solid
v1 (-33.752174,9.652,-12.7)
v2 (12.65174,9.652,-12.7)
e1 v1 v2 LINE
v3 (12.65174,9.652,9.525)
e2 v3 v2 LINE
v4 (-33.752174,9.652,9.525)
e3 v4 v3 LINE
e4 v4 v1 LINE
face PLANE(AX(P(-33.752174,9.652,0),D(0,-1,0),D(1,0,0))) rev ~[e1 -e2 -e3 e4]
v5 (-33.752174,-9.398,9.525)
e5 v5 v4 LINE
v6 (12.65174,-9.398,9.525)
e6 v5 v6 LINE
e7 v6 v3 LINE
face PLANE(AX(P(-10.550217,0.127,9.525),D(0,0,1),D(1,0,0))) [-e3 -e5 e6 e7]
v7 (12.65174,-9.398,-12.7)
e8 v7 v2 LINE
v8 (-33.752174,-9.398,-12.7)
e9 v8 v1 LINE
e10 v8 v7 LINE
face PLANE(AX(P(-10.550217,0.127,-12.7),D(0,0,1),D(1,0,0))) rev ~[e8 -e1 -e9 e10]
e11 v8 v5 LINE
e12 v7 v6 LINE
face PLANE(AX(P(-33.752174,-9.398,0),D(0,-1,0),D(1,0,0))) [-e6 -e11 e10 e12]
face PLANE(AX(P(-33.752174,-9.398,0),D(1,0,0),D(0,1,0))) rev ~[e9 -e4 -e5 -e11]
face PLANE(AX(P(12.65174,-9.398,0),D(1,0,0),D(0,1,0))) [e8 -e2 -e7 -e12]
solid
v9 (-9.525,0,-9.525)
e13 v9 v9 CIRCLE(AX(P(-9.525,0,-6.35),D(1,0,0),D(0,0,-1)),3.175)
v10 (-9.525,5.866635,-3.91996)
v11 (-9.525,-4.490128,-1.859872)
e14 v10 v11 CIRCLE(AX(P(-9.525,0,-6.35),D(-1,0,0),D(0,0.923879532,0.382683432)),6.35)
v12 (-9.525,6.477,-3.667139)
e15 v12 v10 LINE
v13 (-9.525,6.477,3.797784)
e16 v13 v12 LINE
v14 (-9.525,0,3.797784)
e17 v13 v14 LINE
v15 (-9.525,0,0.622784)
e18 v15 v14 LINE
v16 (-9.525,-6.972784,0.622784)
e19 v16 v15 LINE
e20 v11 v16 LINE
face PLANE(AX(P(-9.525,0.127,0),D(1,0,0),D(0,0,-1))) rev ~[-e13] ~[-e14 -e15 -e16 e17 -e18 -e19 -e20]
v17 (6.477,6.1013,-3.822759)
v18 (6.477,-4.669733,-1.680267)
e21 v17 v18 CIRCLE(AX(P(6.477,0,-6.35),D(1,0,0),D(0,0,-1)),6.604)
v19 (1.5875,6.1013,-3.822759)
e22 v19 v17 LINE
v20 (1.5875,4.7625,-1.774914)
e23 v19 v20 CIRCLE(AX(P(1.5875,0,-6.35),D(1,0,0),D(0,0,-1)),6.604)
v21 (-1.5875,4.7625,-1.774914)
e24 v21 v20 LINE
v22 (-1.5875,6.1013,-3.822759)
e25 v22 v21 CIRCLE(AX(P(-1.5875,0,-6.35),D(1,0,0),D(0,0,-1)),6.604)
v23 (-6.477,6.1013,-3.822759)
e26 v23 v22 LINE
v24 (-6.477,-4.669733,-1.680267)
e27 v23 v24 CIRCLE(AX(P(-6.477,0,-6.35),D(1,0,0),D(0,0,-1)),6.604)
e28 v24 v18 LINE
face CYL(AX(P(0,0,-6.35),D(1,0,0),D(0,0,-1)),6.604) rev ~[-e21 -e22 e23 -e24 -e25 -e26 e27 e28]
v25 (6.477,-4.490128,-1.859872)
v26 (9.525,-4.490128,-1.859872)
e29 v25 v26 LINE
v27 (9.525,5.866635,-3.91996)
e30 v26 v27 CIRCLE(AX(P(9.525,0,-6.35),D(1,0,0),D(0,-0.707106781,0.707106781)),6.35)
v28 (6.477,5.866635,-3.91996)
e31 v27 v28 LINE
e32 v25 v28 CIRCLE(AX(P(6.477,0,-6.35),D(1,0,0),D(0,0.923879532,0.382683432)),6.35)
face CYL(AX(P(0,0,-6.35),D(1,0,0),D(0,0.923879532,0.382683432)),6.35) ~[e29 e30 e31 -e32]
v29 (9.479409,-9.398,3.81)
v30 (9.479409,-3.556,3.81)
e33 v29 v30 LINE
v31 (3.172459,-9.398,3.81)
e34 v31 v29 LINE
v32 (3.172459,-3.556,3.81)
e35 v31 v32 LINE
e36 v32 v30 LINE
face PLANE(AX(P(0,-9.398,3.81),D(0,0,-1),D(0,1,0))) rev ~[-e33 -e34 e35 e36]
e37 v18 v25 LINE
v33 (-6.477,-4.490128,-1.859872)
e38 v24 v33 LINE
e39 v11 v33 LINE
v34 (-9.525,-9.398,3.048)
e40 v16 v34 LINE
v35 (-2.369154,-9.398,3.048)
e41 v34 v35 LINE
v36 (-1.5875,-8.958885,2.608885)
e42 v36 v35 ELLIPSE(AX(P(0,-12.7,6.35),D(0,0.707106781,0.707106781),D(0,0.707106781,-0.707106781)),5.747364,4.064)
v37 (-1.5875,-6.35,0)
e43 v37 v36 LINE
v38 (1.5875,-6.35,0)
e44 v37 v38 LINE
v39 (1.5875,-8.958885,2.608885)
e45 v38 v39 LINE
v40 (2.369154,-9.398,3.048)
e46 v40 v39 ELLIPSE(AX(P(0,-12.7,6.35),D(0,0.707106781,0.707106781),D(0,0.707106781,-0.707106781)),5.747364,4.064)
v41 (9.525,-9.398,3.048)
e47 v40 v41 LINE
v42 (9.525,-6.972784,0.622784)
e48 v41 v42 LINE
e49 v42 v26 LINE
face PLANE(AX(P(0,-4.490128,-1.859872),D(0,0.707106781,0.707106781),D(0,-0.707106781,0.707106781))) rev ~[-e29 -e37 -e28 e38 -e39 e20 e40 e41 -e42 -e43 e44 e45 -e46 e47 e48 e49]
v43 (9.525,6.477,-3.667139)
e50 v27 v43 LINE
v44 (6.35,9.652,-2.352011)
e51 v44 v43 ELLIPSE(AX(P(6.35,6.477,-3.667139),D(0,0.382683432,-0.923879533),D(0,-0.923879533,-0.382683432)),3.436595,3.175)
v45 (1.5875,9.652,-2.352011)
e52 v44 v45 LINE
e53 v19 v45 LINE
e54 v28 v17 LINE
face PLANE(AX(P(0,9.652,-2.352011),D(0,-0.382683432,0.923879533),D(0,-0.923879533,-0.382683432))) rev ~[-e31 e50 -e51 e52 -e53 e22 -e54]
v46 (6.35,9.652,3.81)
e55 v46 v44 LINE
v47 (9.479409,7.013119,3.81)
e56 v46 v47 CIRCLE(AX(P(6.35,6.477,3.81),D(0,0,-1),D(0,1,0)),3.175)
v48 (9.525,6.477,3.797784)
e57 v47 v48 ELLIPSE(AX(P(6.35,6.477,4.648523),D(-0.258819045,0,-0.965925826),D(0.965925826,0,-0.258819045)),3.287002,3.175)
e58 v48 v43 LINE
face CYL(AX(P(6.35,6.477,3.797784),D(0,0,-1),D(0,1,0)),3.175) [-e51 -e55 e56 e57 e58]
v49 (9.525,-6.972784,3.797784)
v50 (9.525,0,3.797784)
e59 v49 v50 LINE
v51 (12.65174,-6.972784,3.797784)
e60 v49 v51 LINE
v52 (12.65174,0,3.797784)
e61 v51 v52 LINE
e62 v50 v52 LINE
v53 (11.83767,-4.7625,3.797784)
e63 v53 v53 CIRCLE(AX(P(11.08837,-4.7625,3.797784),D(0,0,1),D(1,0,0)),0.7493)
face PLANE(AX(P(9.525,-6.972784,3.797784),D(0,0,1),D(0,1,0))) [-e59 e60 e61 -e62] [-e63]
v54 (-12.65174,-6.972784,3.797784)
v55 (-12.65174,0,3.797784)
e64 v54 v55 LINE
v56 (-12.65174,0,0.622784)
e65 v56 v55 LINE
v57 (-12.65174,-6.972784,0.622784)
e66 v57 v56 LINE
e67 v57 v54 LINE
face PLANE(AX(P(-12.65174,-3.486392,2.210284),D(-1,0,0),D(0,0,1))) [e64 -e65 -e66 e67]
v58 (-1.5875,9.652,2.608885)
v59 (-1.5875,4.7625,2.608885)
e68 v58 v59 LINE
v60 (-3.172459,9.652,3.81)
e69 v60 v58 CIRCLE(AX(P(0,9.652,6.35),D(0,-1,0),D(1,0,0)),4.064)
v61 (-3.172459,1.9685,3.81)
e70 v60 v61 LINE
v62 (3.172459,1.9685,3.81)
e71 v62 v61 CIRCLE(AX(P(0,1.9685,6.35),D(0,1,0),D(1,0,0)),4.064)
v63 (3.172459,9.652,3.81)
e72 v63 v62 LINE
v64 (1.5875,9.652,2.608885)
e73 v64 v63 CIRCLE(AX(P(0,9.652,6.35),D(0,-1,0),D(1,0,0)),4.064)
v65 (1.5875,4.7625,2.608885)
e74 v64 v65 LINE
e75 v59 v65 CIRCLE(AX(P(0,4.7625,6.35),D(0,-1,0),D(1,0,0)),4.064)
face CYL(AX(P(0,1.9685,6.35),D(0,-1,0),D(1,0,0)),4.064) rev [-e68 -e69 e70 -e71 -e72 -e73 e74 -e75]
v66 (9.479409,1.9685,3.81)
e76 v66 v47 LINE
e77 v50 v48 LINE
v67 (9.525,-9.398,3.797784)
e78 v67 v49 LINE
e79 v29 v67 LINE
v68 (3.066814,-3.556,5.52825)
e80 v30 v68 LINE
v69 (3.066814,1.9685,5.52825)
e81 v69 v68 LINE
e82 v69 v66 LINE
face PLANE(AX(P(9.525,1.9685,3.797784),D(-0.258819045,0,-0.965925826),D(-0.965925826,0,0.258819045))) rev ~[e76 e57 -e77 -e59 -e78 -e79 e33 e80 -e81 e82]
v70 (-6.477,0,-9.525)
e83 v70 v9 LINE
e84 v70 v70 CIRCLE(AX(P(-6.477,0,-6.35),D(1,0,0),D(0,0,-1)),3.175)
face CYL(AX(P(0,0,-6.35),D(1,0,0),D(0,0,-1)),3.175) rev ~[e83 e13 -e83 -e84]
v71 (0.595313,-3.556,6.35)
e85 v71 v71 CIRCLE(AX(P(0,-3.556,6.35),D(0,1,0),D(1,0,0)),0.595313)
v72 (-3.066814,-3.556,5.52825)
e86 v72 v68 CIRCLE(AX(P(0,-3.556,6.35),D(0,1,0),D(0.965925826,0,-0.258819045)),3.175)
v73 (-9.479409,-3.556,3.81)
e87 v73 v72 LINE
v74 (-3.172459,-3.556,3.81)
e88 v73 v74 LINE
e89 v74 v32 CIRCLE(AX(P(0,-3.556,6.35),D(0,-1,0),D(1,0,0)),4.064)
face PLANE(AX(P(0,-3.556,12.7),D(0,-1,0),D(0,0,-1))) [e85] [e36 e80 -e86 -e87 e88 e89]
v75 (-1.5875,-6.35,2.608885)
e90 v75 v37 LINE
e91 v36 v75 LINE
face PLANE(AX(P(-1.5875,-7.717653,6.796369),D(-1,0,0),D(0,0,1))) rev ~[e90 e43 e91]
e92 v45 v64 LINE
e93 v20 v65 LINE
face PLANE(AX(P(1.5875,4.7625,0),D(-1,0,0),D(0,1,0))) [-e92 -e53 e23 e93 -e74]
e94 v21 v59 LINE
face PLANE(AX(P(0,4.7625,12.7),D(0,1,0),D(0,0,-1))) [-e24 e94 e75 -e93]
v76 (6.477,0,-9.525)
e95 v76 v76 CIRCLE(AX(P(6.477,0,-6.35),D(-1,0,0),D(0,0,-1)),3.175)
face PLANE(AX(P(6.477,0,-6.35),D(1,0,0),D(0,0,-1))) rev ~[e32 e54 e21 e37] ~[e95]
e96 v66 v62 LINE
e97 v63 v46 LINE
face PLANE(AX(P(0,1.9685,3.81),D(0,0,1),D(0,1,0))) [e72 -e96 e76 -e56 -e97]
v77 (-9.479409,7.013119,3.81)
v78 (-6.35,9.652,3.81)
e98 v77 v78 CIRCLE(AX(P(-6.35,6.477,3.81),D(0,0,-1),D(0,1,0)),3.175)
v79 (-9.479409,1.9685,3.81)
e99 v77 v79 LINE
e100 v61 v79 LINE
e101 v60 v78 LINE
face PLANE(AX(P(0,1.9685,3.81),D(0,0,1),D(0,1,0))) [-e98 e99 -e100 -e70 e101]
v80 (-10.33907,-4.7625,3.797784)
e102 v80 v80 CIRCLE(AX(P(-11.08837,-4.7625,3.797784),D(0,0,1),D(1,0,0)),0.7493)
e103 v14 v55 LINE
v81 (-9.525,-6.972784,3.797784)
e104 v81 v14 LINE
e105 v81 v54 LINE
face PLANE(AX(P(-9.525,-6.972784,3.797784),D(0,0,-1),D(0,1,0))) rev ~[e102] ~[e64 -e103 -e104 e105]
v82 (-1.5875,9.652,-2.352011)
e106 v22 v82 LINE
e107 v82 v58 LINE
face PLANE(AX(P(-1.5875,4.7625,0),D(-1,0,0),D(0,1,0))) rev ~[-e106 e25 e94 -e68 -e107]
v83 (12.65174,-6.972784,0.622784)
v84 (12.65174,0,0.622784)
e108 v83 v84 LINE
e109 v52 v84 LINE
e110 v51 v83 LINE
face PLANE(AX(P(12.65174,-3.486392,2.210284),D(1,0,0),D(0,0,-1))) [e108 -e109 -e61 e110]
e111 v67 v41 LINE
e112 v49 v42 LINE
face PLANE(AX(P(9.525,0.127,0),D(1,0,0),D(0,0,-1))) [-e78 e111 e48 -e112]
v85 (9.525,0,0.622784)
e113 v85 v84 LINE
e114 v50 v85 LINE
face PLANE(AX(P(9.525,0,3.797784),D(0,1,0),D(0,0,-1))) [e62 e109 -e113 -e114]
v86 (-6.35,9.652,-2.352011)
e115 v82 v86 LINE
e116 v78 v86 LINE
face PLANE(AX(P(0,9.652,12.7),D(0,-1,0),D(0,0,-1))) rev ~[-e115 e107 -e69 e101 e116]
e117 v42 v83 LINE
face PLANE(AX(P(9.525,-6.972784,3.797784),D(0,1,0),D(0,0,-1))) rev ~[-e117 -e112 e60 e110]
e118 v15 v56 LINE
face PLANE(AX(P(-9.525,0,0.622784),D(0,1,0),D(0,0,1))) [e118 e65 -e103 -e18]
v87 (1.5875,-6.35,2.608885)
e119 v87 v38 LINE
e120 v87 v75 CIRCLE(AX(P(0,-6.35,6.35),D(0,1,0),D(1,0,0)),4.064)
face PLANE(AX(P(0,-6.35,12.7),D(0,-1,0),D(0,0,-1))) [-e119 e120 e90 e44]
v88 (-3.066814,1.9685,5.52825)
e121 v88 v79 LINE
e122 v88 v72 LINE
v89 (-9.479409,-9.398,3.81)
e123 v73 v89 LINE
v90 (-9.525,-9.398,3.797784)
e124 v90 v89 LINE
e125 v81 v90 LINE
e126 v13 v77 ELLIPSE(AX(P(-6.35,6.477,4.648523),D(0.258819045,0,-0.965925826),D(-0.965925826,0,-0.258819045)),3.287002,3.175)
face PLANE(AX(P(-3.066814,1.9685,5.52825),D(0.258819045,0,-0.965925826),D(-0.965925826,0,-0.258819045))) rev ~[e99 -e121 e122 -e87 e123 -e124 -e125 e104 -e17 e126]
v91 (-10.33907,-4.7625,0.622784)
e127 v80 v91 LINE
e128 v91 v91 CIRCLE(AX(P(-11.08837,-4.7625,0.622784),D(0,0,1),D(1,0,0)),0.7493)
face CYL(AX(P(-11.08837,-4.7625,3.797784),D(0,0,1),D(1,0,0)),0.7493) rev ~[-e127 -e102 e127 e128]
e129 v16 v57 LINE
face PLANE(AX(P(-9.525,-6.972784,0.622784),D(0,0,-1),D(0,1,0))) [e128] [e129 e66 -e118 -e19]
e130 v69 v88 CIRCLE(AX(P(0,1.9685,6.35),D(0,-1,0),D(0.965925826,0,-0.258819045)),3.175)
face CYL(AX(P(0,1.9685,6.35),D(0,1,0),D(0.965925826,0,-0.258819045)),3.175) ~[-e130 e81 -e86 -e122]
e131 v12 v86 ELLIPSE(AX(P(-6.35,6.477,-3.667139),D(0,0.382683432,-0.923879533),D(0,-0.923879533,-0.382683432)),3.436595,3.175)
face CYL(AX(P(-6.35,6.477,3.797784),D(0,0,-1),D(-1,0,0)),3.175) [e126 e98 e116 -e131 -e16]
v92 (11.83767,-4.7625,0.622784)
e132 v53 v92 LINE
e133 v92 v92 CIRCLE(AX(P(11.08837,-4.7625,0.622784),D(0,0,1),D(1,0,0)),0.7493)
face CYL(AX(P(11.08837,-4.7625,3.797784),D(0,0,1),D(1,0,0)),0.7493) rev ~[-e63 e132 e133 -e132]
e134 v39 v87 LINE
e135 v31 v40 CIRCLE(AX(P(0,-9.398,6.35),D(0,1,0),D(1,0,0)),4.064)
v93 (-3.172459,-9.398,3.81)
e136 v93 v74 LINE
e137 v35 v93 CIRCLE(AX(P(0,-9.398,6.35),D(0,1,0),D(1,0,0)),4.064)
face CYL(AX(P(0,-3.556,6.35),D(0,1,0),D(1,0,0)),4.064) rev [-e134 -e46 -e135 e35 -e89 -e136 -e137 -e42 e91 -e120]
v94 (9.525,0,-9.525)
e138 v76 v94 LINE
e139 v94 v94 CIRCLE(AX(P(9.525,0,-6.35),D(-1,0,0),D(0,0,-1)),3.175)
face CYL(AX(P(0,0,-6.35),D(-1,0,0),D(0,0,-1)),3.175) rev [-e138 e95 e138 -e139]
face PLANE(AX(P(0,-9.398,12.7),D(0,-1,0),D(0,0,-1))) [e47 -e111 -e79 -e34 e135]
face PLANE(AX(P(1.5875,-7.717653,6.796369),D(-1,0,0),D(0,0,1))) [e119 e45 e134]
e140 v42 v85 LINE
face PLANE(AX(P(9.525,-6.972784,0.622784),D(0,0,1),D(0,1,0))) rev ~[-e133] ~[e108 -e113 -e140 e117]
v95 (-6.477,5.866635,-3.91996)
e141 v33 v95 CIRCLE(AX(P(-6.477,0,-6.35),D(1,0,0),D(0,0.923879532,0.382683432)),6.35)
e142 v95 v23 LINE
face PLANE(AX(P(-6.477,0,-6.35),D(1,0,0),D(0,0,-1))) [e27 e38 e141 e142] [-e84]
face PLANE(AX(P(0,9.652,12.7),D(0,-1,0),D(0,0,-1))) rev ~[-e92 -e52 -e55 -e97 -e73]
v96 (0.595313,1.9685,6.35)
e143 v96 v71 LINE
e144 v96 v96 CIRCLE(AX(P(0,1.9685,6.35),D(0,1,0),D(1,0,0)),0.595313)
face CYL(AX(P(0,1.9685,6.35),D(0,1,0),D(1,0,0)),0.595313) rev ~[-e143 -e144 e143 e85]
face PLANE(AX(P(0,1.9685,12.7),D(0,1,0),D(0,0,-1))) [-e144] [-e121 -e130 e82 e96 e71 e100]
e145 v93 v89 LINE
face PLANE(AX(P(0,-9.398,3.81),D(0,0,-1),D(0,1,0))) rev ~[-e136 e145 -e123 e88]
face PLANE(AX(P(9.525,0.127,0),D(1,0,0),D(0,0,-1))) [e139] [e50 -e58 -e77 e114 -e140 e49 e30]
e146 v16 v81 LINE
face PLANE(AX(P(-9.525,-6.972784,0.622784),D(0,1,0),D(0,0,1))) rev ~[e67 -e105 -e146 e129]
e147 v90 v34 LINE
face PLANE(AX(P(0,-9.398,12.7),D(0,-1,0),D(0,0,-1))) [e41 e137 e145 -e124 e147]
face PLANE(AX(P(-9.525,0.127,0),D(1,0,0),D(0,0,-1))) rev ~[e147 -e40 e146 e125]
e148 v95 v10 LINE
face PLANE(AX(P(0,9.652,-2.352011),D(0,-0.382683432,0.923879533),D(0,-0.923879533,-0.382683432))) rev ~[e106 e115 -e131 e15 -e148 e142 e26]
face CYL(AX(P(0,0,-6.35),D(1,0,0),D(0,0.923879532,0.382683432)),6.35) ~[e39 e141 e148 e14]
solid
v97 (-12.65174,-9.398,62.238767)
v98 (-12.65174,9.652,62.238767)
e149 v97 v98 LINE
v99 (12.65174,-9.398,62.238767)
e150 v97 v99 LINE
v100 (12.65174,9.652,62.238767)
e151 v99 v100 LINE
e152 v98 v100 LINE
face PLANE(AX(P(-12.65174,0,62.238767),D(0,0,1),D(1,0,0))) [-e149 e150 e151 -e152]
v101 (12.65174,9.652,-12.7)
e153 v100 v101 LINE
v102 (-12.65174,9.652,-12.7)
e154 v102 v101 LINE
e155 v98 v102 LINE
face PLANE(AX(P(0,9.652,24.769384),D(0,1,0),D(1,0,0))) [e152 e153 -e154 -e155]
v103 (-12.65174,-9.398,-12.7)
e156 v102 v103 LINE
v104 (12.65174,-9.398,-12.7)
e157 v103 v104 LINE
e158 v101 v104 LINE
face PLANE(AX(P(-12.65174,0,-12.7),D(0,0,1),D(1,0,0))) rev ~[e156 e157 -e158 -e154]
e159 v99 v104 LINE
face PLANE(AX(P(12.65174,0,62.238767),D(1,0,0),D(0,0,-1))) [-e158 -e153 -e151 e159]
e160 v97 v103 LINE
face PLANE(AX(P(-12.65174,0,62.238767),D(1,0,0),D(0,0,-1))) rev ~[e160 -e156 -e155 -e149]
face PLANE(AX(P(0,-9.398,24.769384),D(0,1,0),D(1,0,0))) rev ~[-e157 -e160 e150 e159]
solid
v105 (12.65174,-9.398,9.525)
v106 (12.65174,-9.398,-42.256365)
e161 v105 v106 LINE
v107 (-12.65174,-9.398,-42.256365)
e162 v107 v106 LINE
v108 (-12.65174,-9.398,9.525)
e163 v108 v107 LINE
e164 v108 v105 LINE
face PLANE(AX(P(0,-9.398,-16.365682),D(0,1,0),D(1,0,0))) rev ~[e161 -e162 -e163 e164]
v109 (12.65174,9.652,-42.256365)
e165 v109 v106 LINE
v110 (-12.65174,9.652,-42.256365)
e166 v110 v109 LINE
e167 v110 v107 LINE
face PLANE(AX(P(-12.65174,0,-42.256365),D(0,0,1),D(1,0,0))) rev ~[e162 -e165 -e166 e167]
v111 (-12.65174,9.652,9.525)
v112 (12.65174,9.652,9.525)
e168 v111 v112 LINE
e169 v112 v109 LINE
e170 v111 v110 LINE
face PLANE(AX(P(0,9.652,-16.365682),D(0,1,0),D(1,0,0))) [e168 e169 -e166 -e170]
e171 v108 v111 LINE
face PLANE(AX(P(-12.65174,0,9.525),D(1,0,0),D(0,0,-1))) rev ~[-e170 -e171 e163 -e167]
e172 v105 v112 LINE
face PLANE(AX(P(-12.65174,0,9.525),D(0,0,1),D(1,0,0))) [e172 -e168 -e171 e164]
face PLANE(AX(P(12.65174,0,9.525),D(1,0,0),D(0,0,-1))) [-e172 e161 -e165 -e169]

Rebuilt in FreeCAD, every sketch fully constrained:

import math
import FreeCAD as App
import Part
import Sketcher
from FreeCAD import Vector
Q = App.Units.Quantity


def edges_at(feature, points):
    """Names of the edges that pass closest to the given points."""
    edges = feature.Shape.Edges
    near = lambda p: min(range(len(edges)), key=lambda i: edges[i].distToShape(Part.Vertex(*p))[0])
    return sorted({f"Edge{near(p) + 1}" for p in points})

doc = App.newDocument("Part")
body = doc.addObject("PartDesign::Body", "Body")

sketch1 = body.newObject("Sketcher::SketchObject", "Sketch")
sketch1.AttachmentSupport = (doc.getObject("YZ_Plane"), [""])
sketch1.MapMode = "FlatFace"
sketch1.addGeometry(Part.LineSegment(Vector(10, 13, 0), Vector(-9, 13, 0)), False)
sketch1.addGeometry(Part.LineSegment(Vector(-9, 13, 0), Vector(-9, -13, 0)), False)
sketch1.addGeometry(Part.LineSegment(Vector(-9, -13, 0), Vector(10, -13, 0)), False)
sketch1.addGeometry(Part.LineSegment(Vector(10, -13, 0), Vector(10, 13, 0)), False)
sketch1.addConstraint(Sketcher.Constraint("Coincident", 0, 2, 1, 1))
sketch1.addConstraint(Sketcher.Constraint("Coincident", 1, 2, 2, 1))
sketch1.addConstraint(Sketcher.Constraint("Coincident", 2, 2, 3, 1))
sketch1.addConstraint(Sketcher.Constraint("Coincident", 3, 2, 0, 1))
sketch1.addConstraint(Sketcher.Constraint("Horizontal", 0))
sketch1.addConstraint(Sketcher.Constraint("Vertical", 1))
sketch1.addConstraint(Sketcher.Constraint("Horizontal", 2))
sketch1.addConstraint(Sketcher.Constraint("Vertical", 3))
sketch1.addConstraint(Sketcher.Constraint("DistanceY", 1, 2, 1, 1, Q("1 in")))
sketch1.addConstraint(Sketcher.Constraint("DistanceX", 0, 2, 0, 1, Q("0.75 in")))
sketch1.addConstraint(Sketcher.Constraint("DistanceY", -1, 1, 0, 2, Q("0.5 in")))
sketch1.addConstraint(Sketcher.Constraint("DistanceX", 0, 2, -1, 1, Q("0.37 in")))
pad1 = body.newObject("PartDesign::Pad", "Pad")
pad1.Profile = sketch1
pad1.Length = Q("0.75 in")
pad1.Midplane = True

sketch2 = body.newObject("Sketcher::SketchObject", "Sketch001")
sketch2.AttachmentSupport = (doc.getObject("YZ_Plane"), [""])
sketch2.MapMode = "FlatFace"
sketch2.addGeometry(Part.LineSegment(Vector(14.4, 17.4, 0), Vector(-14.1, 17.4, 0)), False)
sketch2.addGeometry(Part.LineSegment(Vector(-14.1, 17.4, 0), Vector(-14.1, -17.4, 0)), False)
sketch2.addGeometry(Part.LineSegment(Vector(-14.1, -17.4, 0), Vector(14.4, -17.4, 0)), False)
sketch2.addGeometry(Part.LineSegment(Vector(14.4, -17.4, 0), Vector(14.4, 17.4, 0)), False)
sketch2.addGeometry(Part.ArcOfCircle(Part.Circle(Vector(0, -6.3, 0), Vector(0, 0, 1), 6.3), math.radians(135), math.radians(383)), False)
sketch2.addGeometry(Part.LineSegment(Vector(-4.5, -1.9, 0), Vector(-9.4, 3, 0)), False)
sketch2.addGeometry(Part.LineSegment(Vector(-9.4, 3, 0), Vector(-9.4, 12.7, 0)), False)
sketch2.addGeometry(Part.LineSegment(Vector(-9.4, 12.7, 0), Vector(9.7, 12.7, 0)), False)
sketch2.addGeometry(Part.LineSegment(Vector(9.7, 12.7, 0), Vector(9.7, -2.4, 0)), False)
sketch2.addGeometry(Part.LineSegment(Vector(9.7, -2.4, 0), Vector(5.9, -3.9, 0)), False)
sketch2.addConstraint(Sketcher.Constraint("Coincident", 0, 2, 1, 1))
sketch2.addConstraint(Sketcher.Constraint("Coincident", 1, 2, 2, 1))
sketch2.addConstraint(Sketcher.Constraint("Coincident", 2, 2, 3, 1))
sketch2.addConstraint(Sketcher.Constraint("Coincident", 3, 2, 0, 1))
sketch2.addConstraint(Sketcher.Constraint("Coincident", 4, 1, 5, 1))
sketch2.addConstraint(Sketcher.Constraint("Coincident", 5, 2, 6, 1))
sketch2.addConstraint(Sketcher.Constraint("Coincident", 6, 2, 7, 1))
sketch2.addConstraint(Sketcher.Constraint("Coincident", 7, 2, 8, 1))
sketch2.addConstraint(Sketcher.Constraint("Coincident", 8, 2, 9, 1))
sketch2.addConstraint(Sketcher.Constraint("Coincident", 9, 2, 4, 2))
sketch2.addConstraint(Sketcher.Constraint("Horizontal", 0))
sketch2.addConstraint(Sketcher.Constraint("Vertical", 1))
sketch2.addConstraint(Sketcher.Constraint("Horizontal", 2))
sketch2.addConstraint(Sketcher.Constraint("Vertical", 3))
sketch2.addConstraint(Sketcher.Constraint("Vertical", 6))
sketch2.addConstraint(Sketcher.Constraint("Horizontal", 7))
sketch2.addConstraint(Sketcher.Constraint("Vertical", 8))
sketch2.addConstraint(Sketcher.Constraint("PointOnObject", 4, 3, -2))
sketch2.addConstraint(Sketcher.Constraint("Radius", 4, Q("0.25 in")))
sketch2.addConstraint(Sketcher.Constraint("Angle", 5, Q("135 deg")))
sketch2.addConstraint(Sketcher.Constraint("DistanceX", 7, 1, 7, 2, Q("0.75 in")))
sketch2.addConstraint(Sketcher.Constraint("DistanceY", 6, 1, 6, 2, Q("0.38 in")))
sketch2.addConstraint(Sketcher.Constraint("DistanceY", -1, 1, 6, 2, Q("0.5 in")))
sketch2.addConstraint(Sketcher.Constraint("Angle", 9, Q("-157.5 deg")))
sketch2.addConstraint(Sketcher.Constraint("DistanceY", 4, 3, -1, 1, Q("0.25 in")))
sketch2.addConstraint(Sketcher.Constraint("DistanceX", 5, 2, -1, 1, Q("0.37 in")))
sketch2.addConstraint(Sketcher.Constraint("DistanceX", 0, 2, 0, 1, 28.456))
sketch2.addConstraint(Sketcher.Constraint("DistanceY", 1, 2, 1, 1, 34.806))
sketch2.addConstraint(Sketcher.Constraint("DistanceY", 8, 2, 8, 1, 15.052011))
sketch2.addConstraint(Sketcher.Constraint("DistanceX", 0, 2, -1, 1, 14.101))
sketch2.addConstraint(Sketcher.Constraint("DistanceY", -1, 1, 0, 2, 17.403))
pocket1 = body.newObject("PartDesign::Pocket", "Pocket")
pocket1.Profile = sketch2
pocket1.Type = "ThroughAll"
pocket1.Midplane = True

sketch3 = body.newObject("Sketcher::SketchObject", "Sketch002")
sketch3.AttachmentSupport = (doc.getObject("YZ_Plane"), [""])
sketch3.MapMode = "FlatFace"
sketch3.addGeometry(Part.Circle(Vector(0, -6, 0), Vector(0, 0, 1), 7), False)
sketch3.addConstraint(Sketcher.Constraint("PointOnObject", 0, 3, -2))
sketch3.addConstraint(Sketcher.Constraint("Diameter", 0, Q("0.52 in")))
sketch3.addConstraint(Sketcher.Constraint("DistanceY", 0, 3, -1, 1, Q("0.25 in")))
pocket2 = body.newObject("PartDesign::Pocket", "Pocket001")
pocket2.Profile = sketch3
pocket2.Length = Q("0.51 in")
pocket2.Midplane = True

sketch4 = body.newObject("Sketcher::SketchObject", "Sketch003")
sketch4.AttachmentSupport = (doc.getObject("YZ_Plane"), [""])
sketch4.MapMode = "FlatFace"
sketch4.addGeometry(Part.Circle(Vector(0, -6.3, 0), Vector(0, 0, 1), 3.2), False)
sketch4.addConstraint(Sketcher.Constraint("PointOnObject", 0, 3, -2))
sketch4.addConstraint(Sketcher.Constraint("Diameter", 0, Q("0.25 in")))
sketch4.addConstraint(Sketcher.Constraint("DistanceY", 0, 3, -1, 1, Q("0.25 in")))
pocket3 = body.newObject("PartDesign::Pocket", "Pocket002")
pocket3.Profile = sketch4
pocket3.Type = "ThroughAll"
pocket3.Midplane = True

sketch5 = body.newObject("Sketcher::SketchObject", "Sketch004")
sketch5.AttachmentSupport = (doc.getObject("XY_Plane"), [""])
sketch5.MapMode = "FlatFace"
sketch5.addGeometry(Part.LineSegment(Vector(-1.6, 9.7, 0), Vector(-1.6, 4.8, 0)), False)
sketch5.addGeometry(Part.LineSegment(Vector(-1.6, 4.8, 0), Vector(1.6, 4.8, 0)), False)
sketch5.addGeometry(Part.LineSegment(Vector(1.6, 4.8, 0), Vector(1.6, 9.7, 0)), False)
sketch5.addGeometry(Part.LineSegment(Vector(1.6, 9.7, 0), Vector(-1.6, 9.7, 0)), False)
sketch5.addConstraint(Sketcher.Constraint("Coincident", 0, 2, 1, 1))
sketch5.addConstraint(Sketcher.Constraint("Coincident", 1, 2, 2, 1))
sketch5.addConstraint(Sketcher.Constraint("Coincident", 2, 2, 3, 1))
sketch5.addConstraint(Sketcher.Constraint("Coincident", 3, 2, 0, 1))
sketch5.addConstraint(Sketcher.Constraint("Vertical", 0))
sketch5.addConstraint(Sketcher.Constraint("Horizontal", 1))
sketch5.addConstraint(Sketcher.Constraint("Vertical", 2))
sketch5.addConstraint(Sketcher.Constraint("Horizontal", 3))
sketch5.addConstraint(Sketcher.Constraint("DistanceX", 1, 1, 1, 2, Q("0.125 in")))
sketch5.addConstraint(Sketcher.Constraint("DistanceY", -1, 1, 2, 2, Q("0.38 in")))
sketch5.addConstraint(Sketcher.Constraint("DistanceY", 0, 2, 0, 1, Q("0.1925 in")))
sketch5.addConstraint(Sketcher.Constraint("DistanceX", 0, 2, -1, 1, Q("0.0625 in")))
pocket4 = body.newObject("PartDesign::Pocket", "Pocket003")
pocket4.Profile = sketch5
pocket4.Type = "ThroughAll"
pocket4.Midplane = True

sketch6 = body.newObject("Sketcher::SketchObject", "Sketch005")
sketch6.AttachmentSupport = (doc.getObject("YZ_Plane"), [""])
sketch6.MapMode = "FlatFace"
sketch6.addGeometry(Part.LineSegment(Vector(-9.4, 3, 0), Vector(-6.3, 0, 0)), False)
sketch6.addGeometry(Part.LineSegment(Vector(-6.3, 0, 0), Vector(-6.3, 12.7, 0)), False)
sketch6.addGeometry(Part.LineSegment(Vector(-6.3, 12.7, 0), Vector(-9.4, 12.7, 0)), False)
sketch6.addGeometry(Part.LineSegment(Vector(-9.4, 12.7, 0), Vector(-9.4, 3, 0)), False)
sketch6.addConstraint(Sketcher.Constraint("Coincident", 0, 2, 1, 1))
sketch6.addConstraint(Sketcher.Constraint("Coincident", 1, 2, 2, 1))
sketch6.addConstraint(Sketcher.Constraint("Coincident", 2, 2, 3, 1))
sketch6.addConstraint(Sketcher.Constraint("Coincident", 3, 2, 0, 1))
sketch6.addConstraint(Sketcher.Constraint("Vertical", 1))
sketch6.addConstraint(Sketcher.Constraint("Horizontal", 2))
sketch6.addConstraint(Sketcher.Constraint("Vertical", 3))
sketch6.addConstraint(Sketcher.Constraint("PointOnObject", 0, 2, -1))
sketch6.addConstraint(Sketcher.Constraint("DistanceY", 1, 1, 1, 2, Q("0.5 in")))
sketch6.addConstraint(Sketcher.Constraint("Angle", 0, Q("-45 deg")))
sketch6.addConstraint(Sketcher.Constraint("DistanceX", 2, 2, 2, 1, Q("0.12 in")))
sketch6.addConstraint(Sketcher.Constraint("DistanceX", 0, 2, -1, 1, Q("0.25 in")))
pocket5 = body.newObject("PartDesign::Pocket", "Pocket004")
pocket5.Profile = sketch6
pocket5.Length = Q("0.125 in")
pocket5.Midplane = True

sketch7 = body.newObject("Sketcher::SketchObject", "Sketch006")
sketch7.AttachmentSupport = (doc.getObject("YZ_Plane"), [""])
sketch7.MapMode = "FlatFace"
sketch7.addGeometry(Part.LineSegment(Vector(9.7, 12.7, 0), Vector(4.8, 12.7, 0)), False)
sketch7.addGeometry(Part.LineSegment(Vector(4.8, 12.7, 0), Vector(4.8, 3.8, 0)), False)
sketch7.addGeometry(Part.LineSegment(Vector(4.8, 3.8, 0), Vector(9.7, 3.8, 0)), False)
sketch7.addGeometry(Part.LineSegment(Vector(9.7, 3.8, 0), Vector(9.7, 12.7, 0)), False)
sketch7.addConstraint(Sketcher.Constraint("Coincident", 0, 2, 1, 1))
sketch7.addConstraint(Sketcher.Constraint("Coincident", 1, 2, 2, 1))
sketch7.addConstraint(Sketcher.Constraint("Coincident", 2, 2, 3, 1))
sketch7.addConstraint(Sketcher.Constraint("Coincident", 3, 2, 0, 1))
sketch7.addConstraint(Sketcher.Constraint("Horizontal", 0))
sketch7.addConstraint(Sketcher.Constraint("Vertical", 1))
sketch7.addConstraint(Sketcher.Constraint("Horizontal", 2))
sketch7.addConstraint(Sketcher.Constraint("Vertical", 3))
sketch7.addConstraint(Sketcher.Constraint("DistanceY", 1, 2, 1, 1, Q("0.35 in")))
sketch7.addConstraint(Sketcher.Constraint("DistanceY", -1, 1, 0, 2, Q("0.5 in")))
sketch7.addConstraint(Sketcher.Constraint("DistanceX", -1, 1, 2, 2, Q("0.38 in")))
sketch7.addConstraint(Sketcher.Constraint("DistanceX", 0, 2, 0, 1, Q("0.1925 in")))
pocket6 = body.newObject("PartDesign::Pocket", "Pocket005")
pocket6.Profile = sketch7
pocket6.Type = "ThroughAll"
pocket6.Midplane = True

sketch8 = body.newObject("Sketcher::SketchObject", "Sketch007")
sketch8.AttachmentSupport = (doc.getObject("YZ_Plane"), [""])
sketch8.MapMode = "FlatFace"
sketch8.addGeometry(Part.LineSegment(Vector(4.8, 12.7, 0), Vector(2, 12.7, 0)), False)
sketch8.addGeometry(Part.LineSegment(Vector(2, 12.7, 0), Vector(2, 3.8, 0)), False)
sketch8.addGeometry(Part.LineSegment(Vector(2, 3.8, 0), Vector(4.8, 3.8, 0)), False)
sketch8.addGeometry(Part.LineSegment(Vector(4.8, 3.8, 0), Vector(4.8, 12.7, 0)), False)
sketch8.addGeometry(Part.LineSegment(Vector(-3.6, 12.7, 0), Vector(-9.4, 12.7, 0)), False)
sketch8.addGeometry(Part.LineSegment(Vector(-9.4, 12.7, 0), Vector(-9.4, 3.8, 0)), False)
sketch8.addGeometry(Part.LineSegment(Vector(-9.4, 3.8, 0), Vector(-3.6, 3.8, 0)), False)
sketch8.addGeometry(Part.LineSegment(Vector(-3.6, 3.8, 0), Vector(-3.6, 12.7, 0)), False)
sketch8.addConstraint(Sketcher.Constraint("Coincident", 0, 2, 1, 1))
sketch8.addConstraint(Sketcher.Constraint("Coincident", 1, 2, 2, 1))
sketch8.addConstraint(Sketcher.Constraint("Coincident", 2, 2, 3, 1))
sketch8.addConstraint(Sketcher.Constraint("Coincident", 3, 2, 0, 1))
sketch8.addConstraint(Sketcher.Constraint("Coincident", 4, 2, 5, 1))
sketch8.addConstraint(Sketcher.Constraint("Coincident", 5, 2, 6, 1))
sketch8.addConstraint(Sketcher.Constraint("Coincident", 6, 2, 7, 1))
sketch8.addConstraint(Sketcher.Constraint("Coincident", 7, 2, 4, 1))
sketch8.addConstraint(Sketcher.Constraint("Horizontal", 0))
sketch8.addConstraint(Sketcher.Constraint("Vertical", 1))
sketch8.addConstraint(Sketcher.Constraint("Horizontal", 2))
sketch8.addConstraint(Sketcher.Constraint("Vertical", 3))
sketch8.addConstraint(Sketcher.Constraint("Horizontal", 4))
sketch8.addConstraint(Sketcher.Constraint("Vertical", 5))
sketch8.addConstraint(Sketcher.Constraint("Horizontal", 6))
sketch8.addConstraint(Sketcher.Constraint("Vertical", 7))
sketch8.addConstraint(Sketcher.Constraint("Horizontal", 3, 2, 4, 2))
sketch8.addConstraint(Sketcher.Constraint("Horizontal", 2, 2, 5, 2))
sketch8.addConstraint(Sketcher.Constraint("DistanceX", 0, 2, 0, 1, Q("0.11 in")))
sketch8.addConstraint(Sketcher.Constraint("DistanceX", 4, 2, 4, 1, Q("0.23 in")))
sketch8.addConstraint(Sketcher.Constraint("DistanceY", 1, 2, 1, 1, Q("0.35 in")))
sketch8.addConstraint(Sketcher.Constraint("DistanceY", -1, 1, 0, 2, Q("0.5 in")))
sketch8.addConstraint(Sketcher.Constraint("DistanceX", 4, 2, -1, 1, Q("0.37 in")))
sketch8.addConstraint(Sketcher.Constraint("DistanceX", -1, 1, 2, 2, Q("0.1875 in")))
pocket7 = body.newObject("PartDesign::Pocket", "Pocket006")
pocket7.Profile = sketch8
pocket7.Type = "ThroughAll"
pocket7.Midplane = True

sketch9 = body.newObject("Sketcher::SketchObject", "Sketch008")
sketch9.AttachmentSupport = (doc.getObject("XZ_Plane"), [""])
sketch9.MapMode = "FlatFace"
sketch9.AttachmentOffset = App.Placement(Vector(0, 0, -0.0775 * 25.4), App.Rotation())
sketch9.addGeometry(Part.LineSegment(Vector(-3.1, 5.5, 0), Vector(-9.5, 3.8, 0)), False)
sketch9.addGeometry(Part.LineSegment(Vector(-9.5, 3.8, 0), Vector(-9.5, 12.7, 0)), False)
sketch9.addGeometry(Part.LineSegment(Vector(-9.5, 12.7, 0), Vector(9.5, 12.7, 0)), False)
sketch9.addGeometry(Part.LineSegment(Vector(9.5, 12.7, 0), Vector(9.5, 3.8, 0)), False)
sketch9.addGeometry(Part.LineSegment(Vector(9.5, 3.8, 0), Vector(3.1, 5.5, 0)), False)
sketch9.addGeometry(Part.ArcOfCircle(Part.Circle(Vector(0, 6.3, 0), Vector(0, 0, 1), 3.2), math.radians(-15), math.radians(195)), False)
sketch9.addConstraint(Sketcher.Constraint("Coincident", 0, 2, 1, 1))
sketch9.addConstraint(Sketcher.Constraint("Coincident", 1, 2, 2, 1))
sketch9.addConstraint(Sketcher.Constraint("Coincident", 2, 2, 3, 1))
sketch9.addConstraint(Sketcher.Constraint("Coincident", 3, 2, 4, 1))
sketch9.addConstraint(Sketcher.Constraint("Coincident", 4, 2, 5, 1))
sketch9.addConstraint(Sketcher.Constraint("Coincident", 5, 2, 0, 1))
sketch9.addConstraint(Sketcher.Constraint("Vertical", 1))
sketch9.addConstraint(Sketcher.Constraint("Horizontal", 2))
sketch9.addConstraint(Sketcher.Constraint("Vertical", 3))
sketch9.addConstraint(Sketcher.Constraint("Symmetric", 0, 2, 3, 2, -2))
sketch9.addConstraint(Sketcher.Constraint("Symmetric", 4, 2, 5, 2, -2))
sketch9.addConstraint(Sketcher.Constraint("Angle", 0, Q("-165 deg")))
sketch9.addConstraint(Sketcher.Constraint("Radius", 5, Q("0.125 in")))
sketch9.addConstraint(Sketcher.Constraint("DistanceX", 2, 1, 2, 2, Q("0.75 in")))
sketch9.addConstraint(Sketcher.Constraint("DistanceY", -1, 1, 1, 2, Q("0.5 in")))
sketch9.addConstraint(Sketcher.Constraint("DistanceY", -1, 1, 5, 3, Q("0.25 in")))
sketch9.addConstraint(Sketcher.Constraint("DistanceY", 1, 1, 1, 2, 8.902216))
pocket8 = body.newObject("PartDesign::Pocket", "Pocket007")
pocket8.Profile = sketch9
pocket8.Type = "ThroughAll"
pocket8.Midplane = True

sketch10 = body.newObject("Sketcher::SketchObject", "Sketch009")
sketch10.AttachmentSupport = (doc.getObject("XZ_Plane"), [""])
sketch10.MapMode = "FlatFace"
sketch10.AttachmentOffset = App.Placement(Vector(0, 0, -0.0775 * 25.4), App.Rotation())
sketch10.addGeometry(Part.Circle(Vector(0, 6.3, 0), Vector(0, 0, 1), 0.6), False)
sketch10.addConstraint(Sketcher.Constraint("PointOnObject", 0, 3, -2))
sketch10.addConstraint(Sketcher.Constraint("Diameter", 0, Q("0.046875 in")))
sketch10.addConstraint(Sketcher.Constraint("DistanceY", -1, 1, 0, 3, Q("0.25 in")))
pocket9 = body.newObject("PartDesign::Pocket", "Pocket008")
pocket9.Profile = sketch10
pocket9.Type = "ThroughAll"
pocket9.Reversed = True
doc.recompute()

fillet = body.newObject("PartDesign::Fillet", "Fillet")
fillet.Base = (pocket9, edges_at(pocket9, [(9.525, 9.652, 0.723), (-9.525, 9.652, 0.723)]))
fillet.Radius = Q("0.125 in")

sketch11 = body.newObject("Sketcher::SketchObject", "Sketch010")
sketch11.AttachmentSupport = (doc.getObject("XZ_Plane"), [""])
sketch11.MapMode = "FlatFace"
sketch11.AttachmentOffset = App.Placement(Vector(0, 0, 0.14 * 25.4), App.Rotation())
sketch11.addGeometry(Part.Circle(Vector(0, 6.3, 0), Vector(0, 0, 1), 4.1), False)
sketch11.addConstraint(Sketcher.Constraint("PointOnObject", 0, 3, -2))
sketch11.addConstraint(Sketcher.Constraint("Diameter", 0, Q("0.32 in")))
sketch11.addConstraint(Sketcher.Constraint("DistanceY", -1, 1, 0, 3, Q("0.25 in")))
pocket10 = body.newObject("PartDesign::Pocket", "Pocket009")
pocket10.Profile = sketch11
pocket10.Type = "ThroughAll"
pocket10.Reversed = True

sketch12 = body.newObject("Sketcher::SketchObject", "Sketch011")
sketch12.AttachmentSupport = (doc.getObject("XZ_Plane"), [""])
sketch12.MapMode = "FlatFace"
sketch12.AttachmentOffset = App.Placement(Vector(0, 0, -0.0775 * 25.4), App.Rotation())
sketch12.addGeometry(Part.Circle(Vector(0, 6.3, 0), Vector(0, 0, 1), 4.1), False)
sketch12.addConstraint(Sketcher.Constraint("PointOnObject", 0, 3, -2))
sketch12.addConstraint(Sketcher.Constraint("Diameter", 0, Q("0.32 in")))
sketch12.addConstraint(Sketcher.Constraint("DistanceY", -1, 1, 0, 3, Q("0.25 in")))
pocket11 = body.newObject("PartDesign::Pocket", "Pocket010")
pocket11.Profile = sketch12
pocket11.Type = "ThroughAll"

sketch13 = body.newObject("Sketcher::SketchObject", "Sketch012")
sketch13.AttachmentSupport = (doc.getObject("YZ_Plane"), [""])
sketch13.MapMode = "FlatFace"
sketch13.AttachmentOffset = App.Placement(Vector(0, 0, 0.375 * 25.4), App.Rotation())
sketch13.addGeometry(Part.LineSegment(Vector(0, 3.8, 0), Vector(-7, 3.8, 0)), False)
sketch13.addGeometry(Part.LineSegment(Vector(-7, 3.8, 0), Vector(-7, 0.6, 0)), False)
sketch13.addGeometry(Part.LineSegment(Vector(-7, 0.6, 0), Vector(0, 0.6, 0)), False)
sketch13.addGeometry(Part.LineSegment(Vector(0, 0.6, 0), Vector(0, 3.8, 0)), False)
sketch13.addConstraint(Sketcher.Constraint("Coincident", 0, 2, 1, 1))
sketch13.addConstraint(Sketcher.Constraint("Coincident", 1, 2, 2, 1))
sketch13.addConstraint(Sketcher.Constraint("Coincident", 2, 2, 3, 1))
sketch13.addConstraint(Sketcher.Constraint("Coincident", 3, 2, 0, 1))
sketch13.addConstraint(Sketcher.Constraint("Horizontal", 0))
sketch13.addConstraint(Sketcher.Constraint("Vertical", 1))
sketch13.addConstraint(Sketcher.Constraint("Horizontal", 2))
sketch13.addConstraint(Sketcher.Constraint("Vertical", 3))
sketch13.addConstraint(Sketcher.Constraint("PointOnObject", 2, 2, -2))
sketch13.addConstraint(Sketcher.Constraint("DistanceY", 1, 2, 1, 1, Q("0.125 in")))
sketch13.addConstraint(Sketcher.Constraint("DistanceX", 0, 2, 0, 1, 6.972784))
sketch13.addConstraint(Sketcher.Constraint("DistanceY", -1, 1, 0, 2, 3.797784))
pad2 = body.newObject("PartDesign::Pad", "Pad001")
pad2.Profile = sketch13
pad2.Length = Q("0.1231 in")

sketch14 = body.newObject("Sketcher::SketchObject", "Sketch013")
sketch14.AttachmentSupport = (doc.getObject("YZ_Plane"), [""])
sketch14.MapMode = "FlatFace"
sketch14.AttachmentOffset = App.Placement(Vector(0, 0, -0.375 * 25.4), App.Rotation())
sketch14.addGeometry(Part.LineSegment(Vector(0, 0.6, 0), Vector(-7, 0.6, 0)), False)
sketch14.addGeometry(Part.LineSegment(Vector(-7, 0.6, 0), Vector(-7, 3.8, 0)), False)
sketch14.addGeometry(Part.LineSegment(Vector(-7, 3.8, 0), Vector(0, 3.8, 0)), False)
sketch14.addGeometry(Part.LineSegment(Vector(0, 3.8, 0), Vector(0, 0.6, 0)), False)
sketch14.addConstraint(Sketcher.Constraint("Coincident", 0, 2, 1, 1))
sketch14.addConstraint(Sketcher.Constraint("Coincident", 1, 2, 2, 1))
sketch14.addConstraint(Sketcher.Constraint("Coincident", 2, 2, 3, 1))
sketch14.addConstraint(Sketcher.Constraint("Coincident", 3, 2, 0, 1))
sketch14.addConstraint(Sketcher.Constraint("Horizontal", 0))
sketch14.addConstraint(Sketcher.Constraint("Vertical", 1))
sketch14.addConstraint(Sketcher.Constraint("Horizontal", 2))
sketch14.addConstraint(Sketcher.Constraint("Vertical", 3))
sketch14.addConstraint(Sketcher.Constraint("PointOnObject", 2, 2, -2))
sketch14.addConstraint(Sketcher.Constraint("DistanceY", 1, 1, 1, 2, Q("0.125 in")))
sketch14.addConstraint(Sketcher.Constraint("DistanceX", 0, 2, 0, 1, 6.972784))
sketch14.addConstraint(Sketcher.Constraint("DistanceY", -1, 1, 0, 2, 0.622784))
pad3 = body.newObject("PartDesign::Pad", "Pad002")
pad3.Profile = sketch14
pad3.Length = Q("0.1231 in")
pad3.Reversed = True

sketch15 = body.newObject("Sketcher::SketchObject", "Sketch014")
sketch15.AttachmentSupport = (doc.getObject("XY_Plane"), [""])
sketch15.MapMode = "FlatFace"
sketch15.AttachmentOffset = App.Placement(Vector(0, 0, 3.797784), App.Rotation())
sketch15.addGeometry(Part.Circle(Vector(11.1, -4.8, 0), Vector(0, 0, 1), 0.7), False)
sketch15.addConstraint(Sketcher.Constraint("Diameter", 0, Q("0.059 in")))
sketch15.addConstraint(Sketcher.Constraint("DistanceY", 0, 3, -1, 1, Q("0.1875 in")))
sketch15.addConstraint(Sketcher.Constraint("DistanceX", -1, 1, 0, 3, 11.08837))
pocket12 = body.newObject("PartDesign::Pocket", "Pocket011")
pocket12.Profile = sketch15
pocket12.Type = "ThroughAll"

sketch16 = body.newObject("Sketcher::SketchObject", "Sketch015")
sketch16.AttachmentSupport = (doc.getObject("XY_Plane"), [""])
sketch16.MapMode = "FlatFace"
sketch16.AttachmentOffset = App.Placement(Vector(0, 0, 3.797784), App.Rotation())
sketch16.addGeometry(Part.Circle(Vector(-11.1, -4.8, 0), Vector(0, 0, 1), 0.7), False)
sketch16.addConstraint(Sketcher.Constraint("Diameter", 0, Q("0.059 in")))
sketch16.addConstraint(Sketcher.Constraint("DistanceY", 0, 3, -1, 1, Q("0.1875 in")))
sketch16.addConstraint(Sketcher.Constraint("DistanceX", 0, 3, -1, 1, 11.08837))
pocket13 = body.newObject("PartDesign::Pocket", "Pocket012")
pocket13.Profile = sketch16
pocket13.Type = "ThroughAll"
body2 = doc.addObject("PartDesign::Body", "Body001")

sketch17 = body2.newObject("Sketcher::SketchObject", "Sketch016")
sketch17.AttachmentSupport = (doc.getObject("XY_Plane001"), [""])
sketch17.MapMode = "FlatFace"
sketch17.addGeometry(Part.LineSegment(Vector(-34, 10, 0), Vector(-34, -9, 0)), False)
sketch17.addGeometry(Part.LineSegment(Vector(-34, -9, 0), Vector(13, -9, 0)), False)
sketch17.addGeometry(Part.LineSegment(Vector(13, -9, 0), Vector(13, 10, 0)), False)
sketch17.addGeometry(Part.LineSegment(Vector(13, 10, 0), Vector(-34, 10, 0)), False)
sketch17.addConstraint(Sketcher.Constraint("Coincident", 0, 2, 1, 1))
sketch17.addConstraint(Sketcher.Constraint("Coincident", 1, 2, 2, 1))
sketch17.addConstraint(Sketcher.Constraint("Coincident", 2, 2, 3, 1))
sketch17.addConstraint(Sketcher.Constraint("Coincident", 3, 2, 0, 1))
sketch17.addConstraint(Sketcher.Constraint("Vertical", 0))
sketch17.addConstraint(Sketcher.Constraint("Horizontal", 1))
sketch17.addConstraint(Sketcher.Constraint("Vertical", 2))
sketch17.addConstraint(Sketcher.Constraint("Horizontal", 3))
sketch17.addConstraint(Sketcher.Constraint("DistanceY", 0, 2, 0, 1, Q("0.75 in")))
sketch17.addConstraint(Sketcher.Constraint("DistanceY", 0, 2, -1, 1, Q("0.37 in")))
sketch17.addConstraint(Sketcher.Constraint("DistanceX", -1, 1, 1, 2, Q("0.4981 in")))
sketch17.addConstraint(Sketcher.Constraint("DistanceX", 1, 1, 1, 2, 46.403914))
pad4 = body2.newObject("PartDesign::Pad", "Pad003")
pad4.Profile = sketch17
pad4.Type = "TwoLengths"
pad4.Length = Q("0.375 in")
pad4.Length2 = Q("0.5 in")
body3 = doc.addObject("PartDesign::Body", "Body002")

sketch18 = body3.newObject("Sketcher::SketchObject", "Sketch017")
sketch18.AttachmentSupport = (doc.getObject("XZ_Plane002"), [""])
sketch18.MapMode = "FlatFace"
sketch18.addGeometry(Part.LineSegment(Vector(-13, -13, 0), Vector(-13, 62, 0)), False)
sketch18.addGeometry(Part.LineSegment(Vector(-13, 62, 0), Vector(13, 62, 0)), False)
sketch18.addGeometry(Part.LineSegment(Vector(13, 62, 0), Vector(13, -13, 0)), False)
sketch18.addGeometry(Part.LineSegment(Vector(13, -13, 0), Vector(-13, -13, 0)), False)
sketch18.addConstraint(Sketcher.Constraint("Coincident", 0, 2, 1, 1))
sketch18.addConstraint(Sketcher.Constraint("Coincident", 1, 2, 2, 1))
sketch18.addConstraint(Sketcher.Constraint("Coincident", 2, 2, 3, 1))
sketch18.addConstraint(Sketcher.Constraint("Coincident", 3, 2, 0, 1))
sketch18.addConstraint(Sketcher.Constraint("Vertical", 0))
sketch18.addConstraint(Sketcher.Constraint("Horizontal", 1))
sketch18.addConstraint(Sketcher.Constraint("Vertical", 2))
sketch18.addConstraint(Sketcher.Constraint("Horizontal", 3))
sketch18.addConstraint(Sketcher.Constraint("DistanceY", 2, 2, -1, 1, Q("0.5 in")))
sketch18.addConstraint(Sketcher.Constraint("DistanceX", 1, 1, 1, 2, Q("0.9962 in")))
sketch18.addConstraint(Sketcher.Constraint("DistanceX", 0, 2, -1, 1, Q("0.4981 in")))
sketch18.addConstraint(Sketcher.Constraint("DistanceY", 0, 1, 0, 2, 74.938767))
pad5 = body3.newObject("PartDesign::Pad", "Pad004")
pad5.Profile = sketch18
pad5.Type = "TwoLengths"
pad5.Length = Q("0.38 in")
pad5.Length2 = Q("0.37 in")
pad5.Reversed = True
body4 = doc.addObject("PartDesign::Body", "Body003")

sketch19 = body4.newObject("Sketcher::SketchObject", "Sketch018")
sketch19.AttachmentSupport = (doc.getObject("XZ_Plane003"), [""])
sketch19.MapMode = "FlatFace"
sketch19.addGeometry(Part.LineSegment(Vector(-13, -42, 0), Vector(-13, 10, 0)), False)
sketch19.addGeometry(Part.LineSegment(Vector(-13, 10, 0), Vector(13, 10, 0)), False)
sketch19.addGeometry(Part.LineSegment(Vector(13, 10, 0), Vector(13, -42, 0)), False)
sketch19.addGeometry(Part.LineSegment(Vector(13, -42, 0), Vector(-13, -42, 0)), False)
sketch19.addConstraint(Sketcher.Constraint("Coincident", 0, 2, 1, 1))
sketch19.addConstraint(Sketcher.Constraint("Coincident", 1, 2, 2, 1))
sketch19.addConstraint(Sketcher.Constraint("Coincident", 2, 2, 3, 1))
sketch19.addConstraint(Sketcher.Constraint("Coincident", 3, 2, 0, 1))
sketch19.addConstraint(Sketcher.Constraint("Vertical", 0))
sketch19.addConstraint(Sketcher.Constraint("Horizontal", 1))
sketch19.addConstraint(Sketcher.Constraint("Vertical", 2))
sketch19.addConstraint(Sketcher.Constraint("Horizontal", 3))
sketch19.addConstraint(Sketcher.Constraint("DistanceX", 1, 1, 1, 2, Q("0.9962 in")))
sketch19.addConstraint(Sketcher.Constraint("DistanceY", -1, 1, 0, 2, Q("0.375 in")))
sketch19.addConstraint(Sketcher.Constraint("DistanceX", 0, 2, -1, 1, Q("0.4981 in")))
sketch19.addConstraint(Sketcher.Constraint("DistanceY", 0, 1, 0, 2, 51.781365))
pad6 = body4.newObject("PartDesign::Pad", "Pad005")
pad6.Profile = sketch19
pad6.Type = "TwoLengths"
pad6.Length = Q("0.38 in")
pad6.Length2 = Q("0.37 in")
pad6.Reversed = True

doc.recompute()
